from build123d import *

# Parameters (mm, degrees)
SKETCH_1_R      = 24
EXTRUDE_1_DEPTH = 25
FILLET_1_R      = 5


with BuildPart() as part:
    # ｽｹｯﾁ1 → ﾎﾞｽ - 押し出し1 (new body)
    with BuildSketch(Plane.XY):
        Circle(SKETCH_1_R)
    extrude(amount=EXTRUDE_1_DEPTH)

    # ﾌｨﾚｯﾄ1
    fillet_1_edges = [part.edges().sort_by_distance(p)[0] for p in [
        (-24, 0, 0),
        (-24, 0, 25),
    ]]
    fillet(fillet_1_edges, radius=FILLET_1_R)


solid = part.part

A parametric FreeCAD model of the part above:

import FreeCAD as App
import Part
import Sketcher


def edges_at(feature, points):
    """Names of the edges that pass closest to the given points."""
    edges = feature.Shape.Edges
    near = lambda p: min(range(len(edges)), key=lambda i: edges[i].distToShape(Part.Vertex(*p))[0])
    return sorted({f"Edge{near(p) + 1}" for p in points})

doc = App.newDocument("Part")
body = doc.addObject("PartDesign::Body", "Body")

# Sketch on XY plane
sketch1 = doc.addObject("Sketcher::SketchObject", "Sketch")
body.addObject(sketch1)
sketch1.AttachmentSupport = (doc.XY_Plane, [""])
sketch1.MapMode = "FlatFace"
sketch1.addGeometry(Part.Circle(App.Vector(0, 0, 0), App.Vector(0, 0, 1), 24), False)
sketch1.addConstraint(Sketcher.Constraint("Coincident", 0, 3, -1, 1))
sketch1.addConstraint(Sketcher.Constraint("Diameter", 0, 48.0))
pad1 = doc.addObject("PartDesign::Pad", "Pad")
body.addObject(pad1)
pad1.Profile = sketch1
pad1.Length = 25
doc.recompute()

fillet = doc.addObject("PartDesign::Fillet", "Fillet")
body.addObject(fillet)
fillet.Base = (pad1, edges_at(pad1, [(-24, 0, 0), (-24, 0, 25)]))
fillet.Radius = 5

doc.recompute()
